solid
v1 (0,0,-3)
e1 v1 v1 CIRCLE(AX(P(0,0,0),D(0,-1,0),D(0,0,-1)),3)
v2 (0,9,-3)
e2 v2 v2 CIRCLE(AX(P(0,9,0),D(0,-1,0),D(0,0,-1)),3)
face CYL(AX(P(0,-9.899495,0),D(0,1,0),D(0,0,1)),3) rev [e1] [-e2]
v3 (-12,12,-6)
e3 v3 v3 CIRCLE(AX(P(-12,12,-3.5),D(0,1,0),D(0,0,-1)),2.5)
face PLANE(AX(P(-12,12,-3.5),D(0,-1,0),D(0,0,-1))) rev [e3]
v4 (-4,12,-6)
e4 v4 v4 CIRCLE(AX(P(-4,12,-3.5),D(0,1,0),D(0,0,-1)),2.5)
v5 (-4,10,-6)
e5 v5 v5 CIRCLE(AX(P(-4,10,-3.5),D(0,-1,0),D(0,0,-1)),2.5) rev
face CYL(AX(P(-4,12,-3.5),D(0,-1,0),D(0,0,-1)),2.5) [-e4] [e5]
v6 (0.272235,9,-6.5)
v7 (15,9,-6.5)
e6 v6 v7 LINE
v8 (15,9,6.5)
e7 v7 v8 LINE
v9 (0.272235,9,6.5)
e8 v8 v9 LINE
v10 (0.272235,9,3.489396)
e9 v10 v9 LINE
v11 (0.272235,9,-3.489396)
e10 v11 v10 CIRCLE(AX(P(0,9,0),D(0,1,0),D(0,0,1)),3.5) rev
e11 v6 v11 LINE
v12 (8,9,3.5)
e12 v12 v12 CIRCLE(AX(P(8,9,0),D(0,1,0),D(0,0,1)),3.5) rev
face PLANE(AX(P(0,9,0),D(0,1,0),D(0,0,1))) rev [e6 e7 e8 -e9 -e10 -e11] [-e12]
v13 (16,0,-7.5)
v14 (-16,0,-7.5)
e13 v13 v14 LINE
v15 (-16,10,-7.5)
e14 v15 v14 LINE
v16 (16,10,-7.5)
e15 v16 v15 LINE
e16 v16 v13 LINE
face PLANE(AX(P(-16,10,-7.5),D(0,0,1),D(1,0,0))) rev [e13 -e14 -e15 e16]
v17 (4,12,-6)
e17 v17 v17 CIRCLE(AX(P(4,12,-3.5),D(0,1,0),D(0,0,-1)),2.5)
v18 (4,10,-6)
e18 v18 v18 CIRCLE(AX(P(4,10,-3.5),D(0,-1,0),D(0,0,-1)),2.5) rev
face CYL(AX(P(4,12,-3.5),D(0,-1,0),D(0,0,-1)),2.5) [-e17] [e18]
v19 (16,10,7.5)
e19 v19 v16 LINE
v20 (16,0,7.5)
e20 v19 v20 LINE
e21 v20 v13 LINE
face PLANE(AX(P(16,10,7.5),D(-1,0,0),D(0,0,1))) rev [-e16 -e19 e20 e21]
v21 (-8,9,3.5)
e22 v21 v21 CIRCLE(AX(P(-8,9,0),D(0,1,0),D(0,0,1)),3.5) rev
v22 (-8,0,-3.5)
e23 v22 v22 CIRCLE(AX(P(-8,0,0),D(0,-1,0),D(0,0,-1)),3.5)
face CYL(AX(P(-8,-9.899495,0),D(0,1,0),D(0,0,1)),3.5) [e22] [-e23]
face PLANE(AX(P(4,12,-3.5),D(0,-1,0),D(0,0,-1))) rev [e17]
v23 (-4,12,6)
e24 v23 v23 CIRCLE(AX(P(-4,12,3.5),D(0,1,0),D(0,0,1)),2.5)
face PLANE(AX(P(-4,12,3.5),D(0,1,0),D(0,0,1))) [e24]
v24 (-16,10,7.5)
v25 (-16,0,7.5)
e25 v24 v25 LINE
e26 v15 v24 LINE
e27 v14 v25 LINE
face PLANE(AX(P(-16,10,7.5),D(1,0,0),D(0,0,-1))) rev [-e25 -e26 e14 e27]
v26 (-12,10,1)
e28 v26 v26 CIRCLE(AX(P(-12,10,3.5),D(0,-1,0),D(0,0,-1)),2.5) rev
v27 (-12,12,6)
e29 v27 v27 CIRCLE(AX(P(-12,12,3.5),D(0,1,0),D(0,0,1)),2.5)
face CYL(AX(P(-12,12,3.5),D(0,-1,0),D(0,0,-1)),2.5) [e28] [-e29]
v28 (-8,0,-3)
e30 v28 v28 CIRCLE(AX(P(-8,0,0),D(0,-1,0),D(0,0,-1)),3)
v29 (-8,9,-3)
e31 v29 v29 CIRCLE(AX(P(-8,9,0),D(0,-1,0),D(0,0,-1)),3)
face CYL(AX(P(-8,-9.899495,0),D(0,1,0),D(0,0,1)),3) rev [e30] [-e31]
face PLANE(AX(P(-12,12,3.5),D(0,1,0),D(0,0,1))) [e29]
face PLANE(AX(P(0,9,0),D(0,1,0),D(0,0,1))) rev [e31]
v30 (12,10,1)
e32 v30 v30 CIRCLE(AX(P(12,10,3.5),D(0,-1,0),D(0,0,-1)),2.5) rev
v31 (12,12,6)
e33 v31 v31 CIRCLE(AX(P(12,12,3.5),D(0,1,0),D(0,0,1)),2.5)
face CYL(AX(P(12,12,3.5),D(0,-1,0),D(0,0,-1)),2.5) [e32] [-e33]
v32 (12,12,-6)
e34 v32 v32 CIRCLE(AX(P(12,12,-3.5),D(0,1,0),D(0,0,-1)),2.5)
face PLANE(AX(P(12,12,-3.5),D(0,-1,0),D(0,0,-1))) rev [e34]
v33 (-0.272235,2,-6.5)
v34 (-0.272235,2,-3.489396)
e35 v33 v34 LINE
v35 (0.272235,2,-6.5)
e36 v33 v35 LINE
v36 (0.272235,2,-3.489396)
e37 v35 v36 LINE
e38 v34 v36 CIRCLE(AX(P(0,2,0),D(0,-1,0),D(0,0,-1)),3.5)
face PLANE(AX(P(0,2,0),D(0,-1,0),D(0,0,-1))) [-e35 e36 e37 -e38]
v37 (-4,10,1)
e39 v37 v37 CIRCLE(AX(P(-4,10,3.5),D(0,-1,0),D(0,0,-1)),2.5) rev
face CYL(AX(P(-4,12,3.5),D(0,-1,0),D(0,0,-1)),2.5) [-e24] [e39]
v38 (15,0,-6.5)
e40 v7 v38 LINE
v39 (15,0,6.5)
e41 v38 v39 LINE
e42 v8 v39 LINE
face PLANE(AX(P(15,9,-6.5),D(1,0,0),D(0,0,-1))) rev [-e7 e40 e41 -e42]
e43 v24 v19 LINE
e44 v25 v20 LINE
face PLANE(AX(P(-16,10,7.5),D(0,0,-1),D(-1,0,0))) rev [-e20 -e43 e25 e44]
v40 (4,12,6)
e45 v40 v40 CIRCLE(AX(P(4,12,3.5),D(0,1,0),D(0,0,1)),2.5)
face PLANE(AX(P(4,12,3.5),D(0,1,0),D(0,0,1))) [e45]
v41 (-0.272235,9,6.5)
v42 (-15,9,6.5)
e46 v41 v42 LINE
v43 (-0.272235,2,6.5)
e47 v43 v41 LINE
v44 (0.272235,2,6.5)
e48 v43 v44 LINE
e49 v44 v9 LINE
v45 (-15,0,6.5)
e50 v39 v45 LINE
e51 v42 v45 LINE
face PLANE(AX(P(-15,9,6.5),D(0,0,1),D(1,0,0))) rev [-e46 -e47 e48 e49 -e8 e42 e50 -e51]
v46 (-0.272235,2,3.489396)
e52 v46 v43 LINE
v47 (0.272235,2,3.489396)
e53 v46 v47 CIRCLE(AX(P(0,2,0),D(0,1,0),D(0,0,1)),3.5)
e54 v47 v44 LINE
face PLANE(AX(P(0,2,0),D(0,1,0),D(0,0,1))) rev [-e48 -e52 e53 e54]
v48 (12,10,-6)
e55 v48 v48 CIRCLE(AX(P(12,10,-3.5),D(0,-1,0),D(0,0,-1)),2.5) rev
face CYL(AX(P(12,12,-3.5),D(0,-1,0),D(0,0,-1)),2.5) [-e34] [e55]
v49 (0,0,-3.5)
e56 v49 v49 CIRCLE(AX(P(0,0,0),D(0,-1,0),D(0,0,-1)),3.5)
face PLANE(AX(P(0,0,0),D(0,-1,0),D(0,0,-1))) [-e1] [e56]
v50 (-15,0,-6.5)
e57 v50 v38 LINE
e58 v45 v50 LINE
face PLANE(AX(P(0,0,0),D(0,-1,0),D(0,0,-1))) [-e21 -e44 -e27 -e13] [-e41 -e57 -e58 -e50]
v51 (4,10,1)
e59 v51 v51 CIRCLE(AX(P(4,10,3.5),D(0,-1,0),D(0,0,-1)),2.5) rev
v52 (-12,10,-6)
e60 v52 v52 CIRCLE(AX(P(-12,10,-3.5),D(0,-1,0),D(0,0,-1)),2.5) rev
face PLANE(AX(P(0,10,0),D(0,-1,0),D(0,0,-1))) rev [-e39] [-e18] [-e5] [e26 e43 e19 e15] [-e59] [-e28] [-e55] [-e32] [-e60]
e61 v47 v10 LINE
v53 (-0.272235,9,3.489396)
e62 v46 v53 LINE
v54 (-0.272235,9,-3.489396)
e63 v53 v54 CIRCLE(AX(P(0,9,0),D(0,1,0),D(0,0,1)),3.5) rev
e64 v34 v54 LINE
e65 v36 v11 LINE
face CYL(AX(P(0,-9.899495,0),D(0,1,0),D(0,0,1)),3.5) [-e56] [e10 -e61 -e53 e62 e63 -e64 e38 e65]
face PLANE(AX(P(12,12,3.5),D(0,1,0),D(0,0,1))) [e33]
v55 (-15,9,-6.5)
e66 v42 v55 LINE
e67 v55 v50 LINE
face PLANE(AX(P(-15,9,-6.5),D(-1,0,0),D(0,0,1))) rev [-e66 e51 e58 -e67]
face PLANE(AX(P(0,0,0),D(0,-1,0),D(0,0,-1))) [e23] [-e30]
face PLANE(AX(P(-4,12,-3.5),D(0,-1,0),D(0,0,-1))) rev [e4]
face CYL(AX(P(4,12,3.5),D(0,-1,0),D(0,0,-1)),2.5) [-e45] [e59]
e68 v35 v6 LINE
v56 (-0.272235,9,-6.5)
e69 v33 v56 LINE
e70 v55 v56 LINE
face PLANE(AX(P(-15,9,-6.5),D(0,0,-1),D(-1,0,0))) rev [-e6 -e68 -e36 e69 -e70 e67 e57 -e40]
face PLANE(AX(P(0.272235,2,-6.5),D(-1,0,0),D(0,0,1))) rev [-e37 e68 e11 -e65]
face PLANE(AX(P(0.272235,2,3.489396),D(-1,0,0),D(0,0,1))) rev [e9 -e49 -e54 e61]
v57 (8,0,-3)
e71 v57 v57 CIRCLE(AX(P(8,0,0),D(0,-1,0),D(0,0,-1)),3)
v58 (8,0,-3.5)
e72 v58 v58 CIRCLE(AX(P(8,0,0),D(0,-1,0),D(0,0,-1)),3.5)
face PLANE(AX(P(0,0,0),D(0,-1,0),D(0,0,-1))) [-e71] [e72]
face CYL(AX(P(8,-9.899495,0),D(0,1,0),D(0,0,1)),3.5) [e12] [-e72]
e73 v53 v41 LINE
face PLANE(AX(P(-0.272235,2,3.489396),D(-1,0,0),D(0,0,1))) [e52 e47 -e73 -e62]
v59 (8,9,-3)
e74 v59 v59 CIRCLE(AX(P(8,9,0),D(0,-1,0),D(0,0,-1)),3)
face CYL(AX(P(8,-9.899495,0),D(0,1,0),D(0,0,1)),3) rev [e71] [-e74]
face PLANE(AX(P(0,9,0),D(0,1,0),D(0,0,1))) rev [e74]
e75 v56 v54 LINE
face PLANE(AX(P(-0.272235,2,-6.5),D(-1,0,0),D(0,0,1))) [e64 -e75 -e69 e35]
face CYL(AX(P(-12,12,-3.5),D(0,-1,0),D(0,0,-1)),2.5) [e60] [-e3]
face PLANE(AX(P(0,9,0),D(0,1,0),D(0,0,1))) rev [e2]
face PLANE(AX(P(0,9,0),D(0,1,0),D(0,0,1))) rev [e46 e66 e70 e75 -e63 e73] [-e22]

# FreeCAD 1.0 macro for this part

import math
import FreeCAD as App
import Part
import Sketcher
Q = App.Units.Quantity


def add_polygon(sketch, points):
    """Adds a closed chain of lines whose ends are joined by coincident constraints."""
    first, n = sketch.GeometryCount, len(points)
    for a, b in zip(points, points[1:] + points[:1]):
        sketch.addGeometry(Part.LineSegment(App.Vector(*a, 0), App.Vector(*b, 0)), False)
    for i in range(n):
        sketch.addConstraint(Sketcher.Constraint("Coincident", first + i, 2, first + (i + 1) % n, 1))

doc = App.newDocument("Part")
params = doc.addObject("Spreadsheet::Sheet", "Params")
for row, (alias, value) in enumerate([
    ("sketch1_width", "32 mm"),
    ("sketch1_height", "15 mm"),
    ("pad1_length", "10 mm"),
    ("sketch2_diameter", "5 mm"),
    ("pad2_length", "2 mm"),
    ("sketch3_width", "30 mm"),
    ("sketch3_height", "13 mm"),
    ("pocket1_length", "9 mm"),
    ("sketch4_diameter", "7 mm"),
    ("sketch4_diameter2", "6 mm"),
    ("pad3_length", "9 mm"),
    ("sketch5_radius", "3.5 mm"),
    ("pad4_length", "7 mm"),
], start=1):
    params.set(f"A{row}", alias)
    params.set(f"B{row}", "=" + value)
    params.setAlias(f"B{row}", alias)

body = doc.addObject("PartDesign::Body", "Body")

# Sketch on XZ plane
sketch1 = body.newObject("Sketcher::SketchObject", "Sketch")
sketch1.AttachmentSupport = (doc.getObject("XZ_Plane"), [""])
sketch1.MapMode = "FlatFace"
add_polygon(sketch1, [(-16, -8), (-16, 8), (16, 8), (16, -8)])  # lines 0-3
sketch1.addConstraint([
    Sketcher.Constraint("Vertical", 0),
    Sketcher.Constraint("Horizontal", 1),
    Sketcher.Constraint("Vertical", 2),
    Sketcher.Constraint("Horizontal", 3),
    Sketcher.Constraint("Symmetric", 0, 2, 2, 2, -1, 1),
    Sketcher.Constraint("DistanceX", 1, 1, 1, 2, Q("32 mm")),
    Sketcher.Constraint("DistanceY", 0, 1, 0, 2, Q("15 mm")),
])
sketch1.setExpression("Constraints[9]", "Params.sketch1_width")
sketch1.setExpression("Constraints[10]", "Params.sketch1_height")
pad1 = body.newObject("PartDesign::Pad", "Pad")
pad1.Profile = sketch1
pad1.setExpression("Length", "Params.pad1_length")
pad1.Reversed = True

# Sketch on XZ plane
sketch2 = body.newObject("Sketcher::SketchObject", "Sketch001")
sketch2.AttachmentSupport = (doc.getObject("XZ_Plane"), [""])
sketch2.MapMode = "FlatFace"
sketch2.AttachmentOffset = App.Placement(App.Vector(0, 0, -10), App.Rotation())
sketch2.addGeometry([
    Part.Circle(App.Vector(-12, 3.5, 0), App.Vector(0, 0, 1), 2.5),  # 0
    Part.Circle(App.Vector(-4, 3.5, 0), App.Vector(0, 0, 1), 2.5),  # 1
    Part.Circle(App.Vector(4, 3.5, 0), App.Vector(0, 0, 1), 2.5),  # 2
    Part.Circle(App.Vector(12, 3.5, 0), App.Vector(0, 0, 1), 2.5),  # 3
    Part.Circle(App.Vector(12, -3.5, 0), App.Vector(0, 0, 1), 2.5),  # 4
    Part.Circle(App.Vector(4, -3.5, 0), App.Vector(0, 0, 1), 2.5),  # 5
    Part.Circle(App.Vector(-4, -3.5, 0), App.Vector(0, 0, 1), 2.5),  # 6
    Part.Circle(App.Vector(-12, -3.5, 0), App.Vector(0, 0, 1), 2.5),  # 7
], False)
sketch2.addConstraint([
    Sketcher.Constraint("Equal", 0, 1),
    Sketcher.Constraint("Equal", 1, 2),
    Sketcher.Constraint("Equal", 2, 3),
    Sketcher.Constraint("Equal", 3, 4),
    Sketcher.Constraint("Equal", 4, 5),
    Sketcher.Constraint("Equal", 5, 6),
    Sketcher.Constraint("Equal", 6, 7),
    Sketcher.Constraint("Symmetric", 0, 3, 4, 3, -1, 1),
    Sketcher.Constraint("Symmetric", 1, 3, 5, 3, -1, 1),
    Sketcher.Constraint("Symmetric", 2, 3, 6, 3, -1, 1),
    Sketcher.Constraint("Symmetric", 3, 3, 7, 3, -1, 1),
    Sketcher.Constraint("Symmetric", 1, 3, 2, 3, -2),
    Sketcher.Constraint("Symmetric", 0, 3, 3, 3, -2),
    Sketcher.Constraint("Horizontal", 0, 3, 1, 3),
    Sketcher.Constraint("Diameter", 0, Q("5 mm")),
    Sketcher.Constraint("DistanceX", 0, 3, -1, 1, Q("12 mm")),
    Sketcher.Constraint("DistanceX", 1, 3, -1, 1, Q("4 mm")),
    Sketcher.Constraint("DistanceY", 4, 3, 3, 3, Q("7 mm")),
])
sketch2.setExpression("Constraints[14]", "Params.sketch2_diameter")
pad2 = body.newObject("PartDesign::Pad", "Pad001")
pad2.Profile = sketch2
pad2.setExpression("Length", "Params.pad2_length")
pad2.Reversed = True

# Sketch on XZ plane
sketch3 = body.newObject("Sketcher::SketchObject", "Sketch002")
sketch3.AttachmentSupport = (doc.getObject("XZ_Plane"), [""])
sketch3.MapMode = "FlatFace"
add_polygon(sketch3, [(-15, 6), (-15, -6), (15, -6), (15, 6)])  # lines 0-3
sketch3.addConstraint([
    Sketcher.Constraint("Vertical", 0),
    Sketcher.Constraint("Horizontal", 1),
    Sketcher.Constraint("Vertical", 2),
    Sketcher.Constraint("Horizontal", 3),
    Sketcher.Constraint("Symmetric", 0, 2, 2, 2, -1, 1),
    Sketcher.Constraint("DistanceX", 1, 1, 1, 2, Q("30 mm")),
    Sketcher.Constraint("DistanceY", 0, 2, 0, 1, Q("13 mm")),
])
sketch3.setExpression("Constraints[9]", "Params.sketch3_width")
sketch3.setExpression("Constraints[10]", "Params.sketch3_height")
pocket1 = body.newObject("PartDesign::Pocket", "Pocket")
pocket1.Profile = sketch3
pocket1.setExpression("Length", "Params.pocket1_length")

# Sketch on XZ plane
sketch4 = body.newObject("Sketcher::SketchObject", "Sketch003")
sketch4.AttachmentSupport = (doc.getObject("XZ_Plane"), [""])
sketch4.MapMode = "FlatFace"
sketch4.AttachmentOffset = App.Placement(App.Vector(0, 0, -9), App.Rotation())
sketch4.addGeometry([
    Part.Circle(App.Vector(0, 0, 0), App.Vector(0, 0, 1), 3.5),  # 0
    Part.Circle(App.Vector(0, 0, 0), App.Vector(0, 0, 1), 3),  # 1
    Part.Circle(App.Vector(8, 0, 0), App.Vector(0, 0, 1), 3.5),  # 2
    Part.Circle(App.Vector(8, 0, 0), App.Vector(0, 0, 1), 3),  # 3
    Part.Circle(App.Vector(-8, 0, 0), App.Vector(0, 0, 1), 3.5),  # 4
    Part.Circle(App.Vector(-8, 0, 0), App.Vector(0, 0, 1), 3),  # 5
], False)
sketch4.addConstraint([
    Sketcher.Constraint("Coincident", 0, 3, -1, 1),
    Sketcher.Constraint("Coincident", 1, 3, -1, 1),
    Sketcher.Constraint("Coincident", 3, 3, 2, 3),
    Sketcher.Constraint("Coincident", 5, 3, 4, 3),
    Sketcher.Constraint("Equal", 0, 2),
    Sketcher.Constraint("Equal", 1, 3),
    Sketcher.Constraint("Equal", 2, 4),
    Sketcher.Constraint("Equal", 3, 5),
    Sketcher.Constraint("Symmetric", 2, 3, 4, 3, -1, 1),
    Sketcher.Constraint("PointOnObject", 2, 3, -1),
    Sketcher.Constraint("Diameter", 0, Q("7 mm")),
    Sketcher.Constraint("Diameter", 1, Q("6 mm")),
    Sketcher.Constraint("DistanceX", -1, 1, 2, 3, Q("8 mm")),
])
sketch4.setExpression("Constraints[10]", "Params.sketch4_diameter")
sketch4.setExpression("Constraints[11]", "Params.sketch4_diameter2")
pad3 = body.newObject("PartDesign::Pad", "Pad002")
pad3.Profile = sketch4
pad3.setExpression("Length", "Params.pad3_length")

# Sketch on XZ plane
sketch5 = body.newObject("Sketcher::SketchObject", "Sketch004")
sketch5.AttachmentSupport = (doc.getObject("XZ_Plane"), [""])
sketch5.MapMode = "FlatFace"
sketch5.AttachmentOffset = App.Placement(App.Vector(0, 0, -9), App.Rotation())
sketch5.addGeometry([
    Part.LineSegment(App.Vector(-0.3, -6.5, 0), App.Vector(0.3, -6.5, 0)),  # 0
    Part.LineSegment(App.Vector(0.3, -6.5, 0), App.Vector(0.3, -3.5, 0)),  # 1
    Part.ArcOfCircle(Part.Circle(App.Vector(0, 0, 0), App.Vector(0, 0, 1), 3.5), math.radians(-94.46), math.radians(-85.54)),  # 2
    Part.LineSegment(App.Vector(-0.3, -3.5, 0), App.Vector(-0.3, -6.5, 0)),  # 3
    Part.LineSegment(App.Vector(0.3, 6.5, 0), App.Vector(-0.3, 6.5, 0)),  # 4
    Part.LineSegment(App.Vector(-0.3, 6.5, 0), App.Vector(-0.3, 3.5, 0)),  # 5
    Part.ArcOfCircle(Part.Circle(App.Vector(0, 0, 0), App.Vector(0, 0, 1), 3.5), math.radians(85.54), math.radians(94.46)),  # 6
    Part.LineSegment(App.Vector(0.3, 3.5, 0), App.Vector(0.3, 6.5, 0)),  # 7
], False)
sketch5.addConstraint([
    Sketcher.Constraint("Coincident", 0, 2, 1, 1),
    Sketcher.Constraint("Coincident", 1, 2, 2, 2),
    Sketcher.Constraint("Coincident", 2, 1, 3, 1),
    Sketcher.Constraint("Coincident", 3, 2, 0, 1),
    Sketcher.Constraint("Coincident", 4, 2, 5, 1),
    Sketcher.Constraint("Coincident", 5, 2, 6, 2),
    Sketcher.Constraint("Coincident", 6, 1, 7, 1),
    Sketcher.Constraint("Coincident", 7, 2, 4, 1),
    Sketcher.Constraint("Horizontal", 0),
    Sketcher.Constraint("Vertical", 1),
    Sketcher.Constraint("Vertical", 3),
    Sketcher.Constraint("Horizontal", 4),
    Sketcher.Constraint("Vertical", 5),
    Sketcher.Constraint("Vertical", 7),
    Sketcher.Constraint("Coincident", 2, 3, -1, 1),
    Sketcher.Constraint("Coincident", 6, 3, -1, 1),
    Sketcher.Constraint("Equal", 2, 6),
    Sketcher.Constraint("Symmetric", 0, 2, 4, 2, -1, 1),
    Sketcher.Constraint("Horizontal", 1, 2, 2, 1),
    Sketcher.Constraint("Horizontal", 5, 2, 6, 1),
    Sketcher.Constraint("Radius", 2, Q("3.5 mm")),
    Sketcher.Constraint("DistanceY", 3, 2, 4, 2, Q("13 mm")),
    Sketcher.Constraint("DistanceX", 0, 1, 0, 2, Q("0.544471 mm")),
])
sketch5.setExpression("Constraints[20]", "Params.sketch5_radius")
pad4 = body.newObject("PartDesign::Pad", "Pad003")
pad4.Profile = sketch5
pad4.setExpression("Length", "Params.pad4_length")

doc.recompute()
